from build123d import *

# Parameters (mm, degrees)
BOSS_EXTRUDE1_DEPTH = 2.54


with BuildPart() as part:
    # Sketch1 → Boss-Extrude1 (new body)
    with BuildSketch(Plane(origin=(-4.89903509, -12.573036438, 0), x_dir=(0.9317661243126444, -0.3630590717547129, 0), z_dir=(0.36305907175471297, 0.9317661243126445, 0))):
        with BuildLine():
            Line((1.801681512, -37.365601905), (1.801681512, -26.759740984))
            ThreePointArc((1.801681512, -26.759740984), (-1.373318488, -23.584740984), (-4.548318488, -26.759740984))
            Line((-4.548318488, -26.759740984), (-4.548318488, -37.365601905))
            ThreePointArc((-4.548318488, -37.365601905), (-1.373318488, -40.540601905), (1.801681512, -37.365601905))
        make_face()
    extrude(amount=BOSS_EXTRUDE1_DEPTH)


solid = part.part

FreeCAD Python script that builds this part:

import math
import FreeCAD as App
import Part
import Sketcher
from FreeCAD import Vector
Q = App.Units.Quantity

doc = App.newDocument("Part")
body = doc.addObject("PartDesign::Body", "Body")

sketch1 = body.newObject("Sketcher::SketchObject", "Sketch")
sketch1.Placement = App.Placement(Vector(-4.899035, -12.573036, 0), App.Rotation(Vector(0.931766124, -0.363059072, 0), Vector(0, 0, -1), Vector(0.363059072, 0.931766124, 0), "ZXY"))
sketch1.addGeometry([
    Part.LineSegment(Vector(1.801682, -37.365602, 0), Vector(1.801682, -26.759741, 0)),
    Part.ArcOfCircle(Part.Circle(Vector(-1.373318, -26.759741, 0), Vector(0, 0, 1), 3.175), math.radians(0), math.radians(180)),
    Part.LineSegment(Vector(-4.548318, -26.759741, 0), Vector(-4.548318, -37.365602, 0)),
    Part.ArcOfCircle(Part.Circle(Vector(-1.373318, -37.365602, 0), Vector(0, 0, 1), 3.175), math.radians(180), math.radians(360)),
], False)
sketch1.addConstraint([
    Sketcher.Constraint("Tangent", 0, 2, 1, 1),
    Sketcher.Constraint("Tangent", 1, 2, 2, 1),
    Sketcher.Constraint("Tangent", 2, 2, 3, 1),
    Sketcher.Constraint("Tangent", 3, 2, 0, 1),
    Sketcher.Constraint("Vertical", 0),
    Sketcher.Constraint("Vertical", 2),
    Sketcher.Constraint("Radius", 1, Q("0.125 in")),
    Sketcher.Constraint("DistanceY", 0, 1, 0, 2, 10.605861),
    Sketcher.Constraint("DistanceY", 3, 3, -1, 1, 37.365602),
    Sketcher.Constraint("DistanceX", 1, 3, -1, 1, 1.373318),
])
pad1 = body.newObject("PartDesign::Pad", "Pad")
pad1.Profile = sketch1
pad1.Length = Q("0.1 in")

doc.recompute()
